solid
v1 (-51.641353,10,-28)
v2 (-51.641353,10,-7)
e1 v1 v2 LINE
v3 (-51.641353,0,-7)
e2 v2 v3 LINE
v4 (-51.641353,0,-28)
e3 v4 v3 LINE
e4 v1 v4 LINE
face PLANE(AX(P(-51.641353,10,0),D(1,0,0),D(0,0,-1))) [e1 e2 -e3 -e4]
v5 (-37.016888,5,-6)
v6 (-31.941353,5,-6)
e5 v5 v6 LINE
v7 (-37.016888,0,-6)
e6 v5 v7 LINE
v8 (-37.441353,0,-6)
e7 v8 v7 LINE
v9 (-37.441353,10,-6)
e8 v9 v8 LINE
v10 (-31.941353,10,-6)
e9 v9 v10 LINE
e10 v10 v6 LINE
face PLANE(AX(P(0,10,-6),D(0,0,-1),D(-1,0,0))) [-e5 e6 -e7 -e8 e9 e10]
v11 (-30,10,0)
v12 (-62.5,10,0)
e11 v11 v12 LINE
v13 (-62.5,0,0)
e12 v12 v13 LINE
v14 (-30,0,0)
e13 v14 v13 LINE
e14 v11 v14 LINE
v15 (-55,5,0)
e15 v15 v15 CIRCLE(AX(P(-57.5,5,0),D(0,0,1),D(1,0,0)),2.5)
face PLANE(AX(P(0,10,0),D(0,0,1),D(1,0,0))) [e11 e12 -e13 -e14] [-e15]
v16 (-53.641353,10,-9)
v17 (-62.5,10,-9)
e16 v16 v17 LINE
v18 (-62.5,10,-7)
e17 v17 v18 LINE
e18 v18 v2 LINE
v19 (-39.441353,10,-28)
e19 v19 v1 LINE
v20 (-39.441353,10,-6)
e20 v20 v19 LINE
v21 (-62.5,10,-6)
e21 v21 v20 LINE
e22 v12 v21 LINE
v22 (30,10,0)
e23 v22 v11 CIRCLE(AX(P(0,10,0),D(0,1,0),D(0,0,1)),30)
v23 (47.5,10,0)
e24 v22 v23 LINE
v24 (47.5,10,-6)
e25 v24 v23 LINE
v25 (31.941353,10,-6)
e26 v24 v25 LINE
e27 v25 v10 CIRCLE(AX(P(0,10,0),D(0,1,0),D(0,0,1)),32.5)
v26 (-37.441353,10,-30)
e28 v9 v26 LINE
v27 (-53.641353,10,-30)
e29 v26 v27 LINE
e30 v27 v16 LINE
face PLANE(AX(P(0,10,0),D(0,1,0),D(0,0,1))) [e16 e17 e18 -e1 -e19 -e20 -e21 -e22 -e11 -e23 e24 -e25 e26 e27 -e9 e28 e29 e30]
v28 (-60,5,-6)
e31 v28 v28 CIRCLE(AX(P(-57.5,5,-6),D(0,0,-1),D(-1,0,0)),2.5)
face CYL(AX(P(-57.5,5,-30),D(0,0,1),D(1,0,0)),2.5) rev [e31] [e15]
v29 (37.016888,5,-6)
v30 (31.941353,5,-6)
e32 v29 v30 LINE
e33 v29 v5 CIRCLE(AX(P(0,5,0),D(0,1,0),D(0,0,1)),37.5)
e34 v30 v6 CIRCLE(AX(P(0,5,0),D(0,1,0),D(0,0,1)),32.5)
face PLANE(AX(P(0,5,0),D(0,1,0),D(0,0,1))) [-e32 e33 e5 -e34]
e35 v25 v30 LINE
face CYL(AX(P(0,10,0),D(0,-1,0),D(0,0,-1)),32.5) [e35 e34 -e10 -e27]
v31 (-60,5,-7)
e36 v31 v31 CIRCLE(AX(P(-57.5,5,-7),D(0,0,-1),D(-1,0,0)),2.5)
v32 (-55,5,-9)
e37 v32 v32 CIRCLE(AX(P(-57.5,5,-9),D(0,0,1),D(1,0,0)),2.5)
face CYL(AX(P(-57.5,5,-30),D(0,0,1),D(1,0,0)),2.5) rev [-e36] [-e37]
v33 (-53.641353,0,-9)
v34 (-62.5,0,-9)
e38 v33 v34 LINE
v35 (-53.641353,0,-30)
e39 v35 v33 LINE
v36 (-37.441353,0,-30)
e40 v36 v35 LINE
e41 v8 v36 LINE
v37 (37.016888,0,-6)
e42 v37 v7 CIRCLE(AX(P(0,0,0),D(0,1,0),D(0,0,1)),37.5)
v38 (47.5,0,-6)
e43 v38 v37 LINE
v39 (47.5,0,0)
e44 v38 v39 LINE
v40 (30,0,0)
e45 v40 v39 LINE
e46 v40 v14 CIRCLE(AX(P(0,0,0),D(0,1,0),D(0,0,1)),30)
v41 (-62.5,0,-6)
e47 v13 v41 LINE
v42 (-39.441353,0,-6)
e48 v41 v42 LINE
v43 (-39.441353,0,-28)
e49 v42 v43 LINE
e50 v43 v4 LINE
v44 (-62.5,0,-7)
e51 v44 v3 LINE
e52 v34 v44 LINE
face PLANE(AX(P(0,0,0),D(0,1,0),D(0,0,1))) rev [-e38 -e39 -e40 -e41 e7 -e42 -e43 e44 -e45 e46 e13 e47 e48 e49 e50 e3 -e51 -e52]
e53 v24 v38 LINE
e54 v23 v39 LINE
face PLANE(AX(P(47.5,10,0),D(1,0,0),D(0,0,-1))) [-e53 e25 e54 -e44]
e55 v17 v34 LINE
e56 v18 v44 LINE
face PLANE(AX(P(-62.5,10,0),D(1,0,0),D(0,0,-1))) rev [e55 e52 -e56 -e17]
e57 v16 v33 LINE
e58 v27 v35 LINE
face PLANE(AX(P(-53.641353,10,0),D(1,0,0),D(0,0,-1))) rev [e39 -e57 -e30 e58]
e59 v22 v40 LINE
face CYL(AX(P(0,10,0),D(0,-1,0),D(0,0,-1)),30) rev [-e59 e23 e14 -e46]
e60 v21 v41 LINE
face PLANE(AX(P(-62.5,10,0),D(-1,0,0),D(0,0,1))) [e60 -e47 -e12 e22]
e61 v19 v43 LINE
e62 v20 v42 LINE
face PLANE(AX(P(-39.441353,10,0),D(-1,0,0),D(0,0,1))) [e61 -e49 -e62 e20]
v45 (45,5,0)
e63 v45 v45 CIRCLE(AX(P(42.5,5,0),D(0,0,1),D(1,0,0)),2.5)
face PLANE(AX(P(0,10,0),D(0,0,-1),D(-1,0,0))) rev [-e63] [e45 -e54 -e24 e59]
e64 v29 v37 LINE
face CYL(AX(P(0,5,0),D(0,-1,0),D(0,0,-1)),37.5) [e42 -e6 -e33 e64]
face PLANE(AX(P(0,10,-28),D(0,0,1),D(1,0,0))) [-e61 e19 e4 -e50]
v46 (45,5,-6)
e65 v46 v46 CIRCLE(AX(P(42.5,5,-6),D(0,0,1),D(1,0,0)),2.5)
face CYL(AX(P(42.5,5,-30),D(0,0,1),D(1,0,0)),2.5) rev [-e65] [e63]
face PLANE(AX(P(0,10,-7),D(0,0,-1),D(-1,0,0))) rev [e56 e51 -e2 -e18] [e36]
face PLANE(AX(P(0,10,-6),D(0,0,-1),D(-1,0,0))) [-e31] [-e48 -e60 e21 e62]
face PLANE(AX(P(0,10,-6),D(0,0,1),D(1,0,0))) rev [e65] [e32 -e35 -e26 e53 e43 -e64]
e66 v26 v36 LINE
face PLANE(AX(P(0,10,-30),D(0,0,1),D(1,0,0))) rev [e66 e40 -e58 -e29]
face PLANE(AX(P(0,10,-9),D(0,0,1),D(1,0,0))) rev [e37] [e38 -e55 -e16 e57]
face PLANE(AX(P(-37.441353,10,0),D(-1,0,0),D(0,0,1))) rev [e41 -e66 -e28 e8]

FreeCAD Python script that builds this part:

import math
import FreeCAD as App
import Part
import Sketcher

doc = App.newDocument("Part")
body = doc.addObject("PartDesign::Body", "Body")

sketch1 = body.newObject("Sketcher::SketchObject", "Sketch")
sketch1.AttachmentSupport = (doc.getObject("XZ_Plane"), [""])
sketch1.MapMode = "FlatFace"
sketch1.addGeometry([
    Part.LineSegment(App.Vector(47.5, -6, 0), App.Vector(31.941353, -6, 0)),
    Part.ArcOfCircle(Part.Circle(App.Vector(0, 0, 0), App.Vector(0, 0, 1), 32.5), math.radians(-169.361291), math.radians(-10.638709)),
    Part.LineSegment(App.Vector(-31.941353, -6, 0), App.Vector(-62.5, -6, 0)),
    Part.LineSegment(App.Vector(-62.5, -6, 0), App.Vector(-62.5, 0, 0)),
    Part.LineSegment(App.Vector(-62.5, 0, 0), App.Vector(-30, 0, 0)),
    Part.ArcOfCircle(Part.Circle(App.Vector(0, 0, 0), App.Vector(0, 0, 1), 30), math.radians(180), math.radians(360)),
    Part.LineSegment(App.Vector(30, 0, 0), App.Vector(47.5, 0, 0)),
    Part.LineSegment(App.Vector(47.5, 0, 0), App.Vector(47.5, -6, 0)),
], False)
sketch1.addConstraint([
    Sketcher.Constraint("Coincident", 0, 2, 1, 2),
    Sketcher.Constraint("Coincident", 1, 1, 2, 1),
    Sketcher.Constraint("Coincident", 2, 2, 3, 1),
    Sketcher.Constraint("Coincident", 3, 2, 4, 1),
    Sketcher.Constraint("Coincident", 4, 2, 5, 1),
    Sketcher.Constraint("Coincident", 5, 2, 6, 1),
    Sketcher.Constraint("Coincident", 6, 2, 7, 1),
    Sketcher.Constraint("Coincident", 7, 2, 0, 1),
    Sketcher.Constraint("Horizontal", 0),
    Sketcher.Constraint("Horizontal", 2),
    Sketcher.Constraint("Vertical", 3),
    Sketcher.Constraint("Horizontal", 4),
    Sketcher.Constraint("Horizontal", 6),
    Sketcher.Constraint("Vertical", 7),
    Sketcher.Constraint("Coincident", 1, 3, -1, 1),
    Sketcher.Constraint("Coincident", 5, 3, -1, 1),
    Sketcher.Constraint("PointOnObject", 3, 2, -1),
    Sketcher.Constraint("PointOnObject", 5, 2, -1),
    Sketcher.Constraint("Horizontal", 0, 2, 1, 1),
    Sketcher.Constraint("Radius", 5, 30.0),
    Sketcher.Constraint("Radius", 1, 32.5),
    Sketcher.Constraint("DistanceY", 3, 1, 3, 2, 6.0),
    Sketcher.Constraint("DistanceX", 4, 1, 4, 2, 32.5),
    Sketcher.Constraint("DistanceX", 6, 1, 6, 2, 17.5),
])
pad1 = body.newObject("PartDesign::Pad", "Pad")
pad1.Profile = sketch1
pad1.Length = 10
pad1.Reversed = True

sketch2 = body.newObject("Sketcher::SketchObject", "Sketch001")
sketch2.AttachmentSupport = (doc.getObject("XZ_Plane"), [""])
sketch2.MapMode = "FlatFace"
sketch2.addGeometry([
    Part.ArcOfCircle(Part.Circle(App.Vector(0, 0, 0), App.Vector(0, 0, 1), 37.5), math.radians(180), math.radians(360)),
    Part.LineSegment(App.Vector(-37.5, 0, 0), App.Vector(-32.5, 0, 0)),
    Part.ArcOfCircle(Part.Circle(App.Vector(0, 0, 0), App.Vector(0, 0, 1), 32.5), math.radians(180), math.radians(360)),
    Part.LineSegment(App.Vector(32.5, 0, 0), App.Vector(37.5, 0, 0)),
], False)
sketch2.addConstraint([
    Sketcher.Constraint("Coincident", 0, 1, 1, 1),
    Sketcher.Constraint("Coincident", 1, 2, 2, 1),
    Sketcher.Constraint("Coincident", 2, 2, 3, 1),
    Sketcher.Constraint("Coincident", 3, 2, 0, 2),
    Sketcher.Constraint("Horizontal", 1),
    Sketcher.Constraint("Horizontal", 3),
    Sketcher.Constraint("Coincident", 0, 3, -1, 1),
    Sketcher.Constraint("Coincident", 2, 3, -1, 1),
    Sketcher.Constraint("PointOnObject", 0, 1, -1),
    Sketcher.Constraint("PointOnObject", 2, 2, -1),
    Sketcher.Constraint("Radius", 0, 37.5),
    Sketcher.Constraint("Radius", 2, 32.5),
])
pad2 = body.newObject("PartDesign::Pad", "Pad001")
pad2.Profile = sketch2
pad2.Length = 5
pad2.Reversed = True

sketch3 = body.newObject("Sketcher::SketchObject", "Sketch002")
sketch3.AttachmentSupport = (doc.getObject("XZ_Plane"), [""])
sketch3.MapMode = "FlatFace"
sketch3.addGeometry([
    Part.LineSegment(App.Vector(-39.441353, -6, 0), App.Vector(-37.441353, -6, 0)),
    Part.LineSegment(App.Vector(-37.441353, -6, 0), App.Vector(-37.441353, -30, 0)),
    Part.LineSegment(App.Vector(-37.441353, -30, 0), App.Vector(-53.641353, -30, 0)),
    Part.LineSegment(App.Vector(-53.641353, -30, 0), App.Vector(-53.641353, -9, 0)),
    Part.LineSegment(App.Vector(-53.641353, -9, 0), App.Vector(-62.5, -9, 0)),
    Part.LineSegment(App.Vector(-62.5, -9, 0), App.Vector(-62.5, -7, 0)),
    Part.LineSegment(App.Vector(-62.5, -7, 0), App.Vector(-51.641353, -7, 0)),
    Part.LineSegment(App.Vector(-51.641353, -7, 0), App.Vector(-51.641353, -28, 0)),
    Part.LineSegment(App.Vector(-51.641353, -28, 0), App.Vector(-39.441353, -28, 0)),
    Part.LineSegment(App.Vector(-39.441353, -28, 0), App.Vector(-39.441353, -6, 0)),
], False)
sketch3.addConstraint([
    Sketcher.Constraint("Coincident", 0, 2, 1, 1),
    Sketcher.Constraint("Coincident", 1, 2, 2, 1),
    Sketcher.Constraint("Coincident", 2, 2, 3, 1),
    Sketcher.Constraint("Coincident", 3, 2, 4, 1),
    Sketcher.Constraint("Coincident", 4, 2, 5, 1),
    Sketcher.Constraint("Coincident", 5, 2, 6, 1),
    Sketcher.Constraint("Coincident", 6, 2, 7, 1),
    Sketcher.Constraint("Coincident", 7, 2, 8, 1),
    Sketcher.Constraint("Coincident", 8, 2, 9, 1),
    Sketcher.Constraint("Coincident", 9, 2, 0, 1),
    Sketcher.Constraint("Horizontal", 0),
    Sketcher.Constraint("Vertical", 1),
    Sketcher.Constraint("Horizontal", 2),
    Sketcher.Constraint("Vertical", 3),
    Sketcher.Constraint("Horizontal", 4),
    Sketcher.Constraint("Vertical", 5),
    Sketcher.Constraint("Horizontal", 6),
    Sketcher.Constraint("Vertical", 7),
    Sketcher.Constraint("Horizontal", 8),
    Sketcher.Constraint("Vertical", 9),
    Sketcher.Constraint("Equal", 0, 5),
    Sketcher.Constraint("Equal", 3, 7),
    Sketcher.Constraint("DistanceX", 0, 1, 0, 2, 2.0),
    Sketcher.Constraint("DistanceY", 1, 2, 1, 1, 24.0),
    Sketcher.Constraint("DistanceY", 3, 1, 3, 2, 21.0),
    Sketcher.Constraint("DistanceX", 2, 2, 2, 1, 16.2),
    Sketcher.Constraint("DistanceX", 8, 1, 8, 2, 12.2),
    Sketcher.Constraint("DistanceY", 0, 2, -1, 1, 6.0),
    Sketcher.Constraint("DistanceX", 4, 2, -1, 1, 62.5),
    Sketcher.Constraint("DistanceX", 4, 2, 4, 1, 8.858647),
])
pad3 = body.newObject("PartDesign::Pad", "Pad002")
pad3.Profile = sketch3
pad3.Length = 10
pad3.Reversed = True

sketch4 = body.newObject("Sketcher::SketchObject", "Sketch003")
sketch4.AttachmentSupport = (doc.getObject("XY_Plane"), [""])
sketch4.MapMode = "FlatFace"
sketch4.addGeometry([
    Part.Circle(App.Vector(-57.5, 5, 0), App.Vector(0, 0, 1), 2.5),
    Part.Circle(App.Vector(42.5, 5, 0), App.Vector(0, 0, 1), 2.5),
], False)
sketch4.addConstraint([
    Sketcher.Constraint("Equal", 0, 1),
    Sketcher.Constraint("Horizontal", 0, 3, 1, 3),
    Sketcher.Constraint("Diameter", 0, 5.0),
    Sketcher.Constraint("DistanceY", -1, 1, 0, 3, 5.0),
    Sketcher.Constraint("DistanceX", 0, 3, 1, 3, 100.0),
    Sketcher.Constraint("DistanceX", 0, 3, -1, 1, 57.5),
])
pocket1 = body.newObject("PartDesign::Pocket", "Pocket")
pocket1.Profile = sketch4
pocket1.Length = 30

doc.recompute()
